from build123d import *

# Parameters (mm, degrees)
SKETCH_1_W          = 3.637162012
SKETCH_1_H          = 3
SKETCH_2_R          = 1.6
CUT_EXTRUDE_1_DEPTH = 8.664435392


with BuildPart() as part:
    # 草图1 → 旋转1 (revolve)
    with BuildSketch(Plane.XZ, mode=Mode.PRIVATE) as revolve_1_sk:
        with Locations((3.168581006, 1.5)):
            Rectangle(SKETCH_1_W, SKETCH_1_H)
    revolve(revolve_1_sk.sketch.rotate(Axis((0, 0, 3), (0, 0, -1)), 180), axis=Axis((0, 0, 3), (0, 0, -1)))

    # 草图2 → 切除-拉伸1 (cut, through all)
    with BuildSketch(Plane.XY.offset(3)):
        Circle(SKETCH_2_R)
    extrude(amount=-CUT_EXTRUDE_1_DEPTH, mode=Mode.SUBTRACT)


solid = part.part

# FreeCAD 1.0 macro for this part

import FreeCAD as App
import Part
import Sketcher


def add_polygon(sketch, points):
    """Adds a closed chain of lines whose ends are joined by coincident constraints."""
    first, n = sketch.GeometryCount, len(points)
    for a, b in zip(points, points[1:] + points[:1]):
        sketch.addGeometry(Part.LineSegment(App.Vector(*a, 0), App.Vector(*b, 0)), False)
    for i in range(n):
        sketch.addConstraint(Sketcher.Constraint("Coincident", first + i, 2, first + (i + 1) % n, 1))

doc = App.newDocument("Part")
body = doc.addObject("PartDesign::Body", "Body")

sketch1 = body.newObject("Sketcher::SketchObject", "Sketch")
sketch1.AttachmentSupport = (doc.getObject("XZ_Plane"), [""])
sketch1.MapMode = "FlatFace"
add_polygon(sketch1, [(1.35, 3), (1.35, 0), (4.987162, 0), (4.987162, 3)])
sketch1.addConstraint([
    Sketcher.Constraint("Vertical", 0),
    Sketcher.Constraint("Horizontal", 1),
    Sketcher.Constraint("Vertical", 2),
    Sketcher.Constraint("Horizontal", 3),
    Sketcher.Constraint("PointOnObject", 0, 2, -1),
    Sketcher.Constraint("DistanceY", 0, 2, 0, 1, 3.0),
    Sketcher.Constraint("DistanceX", -1, 1, 0, 2, 1.35),
    Sketcher.Constraint("DistanceX", 1, 1, 1, 2, 3.637162),
])
revolution = body.newObject("PartDesign::Revolution", "Revolution")
revolution.Profile = sketch1
revolution.ReferenceAxis = (sketch1, ["V_Axis"])
revolution.Angle = 360

sketch2 = body.newObject("Sketcher::SketchObject", "Sketch001")
sketch2.AttachmentSupport = (doc.getObject("XY_Plane"), [""])
sketch2.MapMode = "FlatFace"
sketch2.AttachmentOffset = App.Placement(App.Vector(0, 0, 3), App.Rotation())
sketch2.addGeometry(Part.Circle(App.Vector(0, 0, 0), App.Vector(0, 0, 1), 1.6), False)
sketch2.addConstraint([
    Sketcher.Constraint("Coincident", 0, 3, -1, 1),
    Sketcher.Constraint("Diameter", 0, 3.2),
])
pocket1 = body.newObject("PartDesign::Pocket", "Pocket")
pocket1.Profile = sketch2
pocket1.Type = "ThroughAll"

doc.recompute()
